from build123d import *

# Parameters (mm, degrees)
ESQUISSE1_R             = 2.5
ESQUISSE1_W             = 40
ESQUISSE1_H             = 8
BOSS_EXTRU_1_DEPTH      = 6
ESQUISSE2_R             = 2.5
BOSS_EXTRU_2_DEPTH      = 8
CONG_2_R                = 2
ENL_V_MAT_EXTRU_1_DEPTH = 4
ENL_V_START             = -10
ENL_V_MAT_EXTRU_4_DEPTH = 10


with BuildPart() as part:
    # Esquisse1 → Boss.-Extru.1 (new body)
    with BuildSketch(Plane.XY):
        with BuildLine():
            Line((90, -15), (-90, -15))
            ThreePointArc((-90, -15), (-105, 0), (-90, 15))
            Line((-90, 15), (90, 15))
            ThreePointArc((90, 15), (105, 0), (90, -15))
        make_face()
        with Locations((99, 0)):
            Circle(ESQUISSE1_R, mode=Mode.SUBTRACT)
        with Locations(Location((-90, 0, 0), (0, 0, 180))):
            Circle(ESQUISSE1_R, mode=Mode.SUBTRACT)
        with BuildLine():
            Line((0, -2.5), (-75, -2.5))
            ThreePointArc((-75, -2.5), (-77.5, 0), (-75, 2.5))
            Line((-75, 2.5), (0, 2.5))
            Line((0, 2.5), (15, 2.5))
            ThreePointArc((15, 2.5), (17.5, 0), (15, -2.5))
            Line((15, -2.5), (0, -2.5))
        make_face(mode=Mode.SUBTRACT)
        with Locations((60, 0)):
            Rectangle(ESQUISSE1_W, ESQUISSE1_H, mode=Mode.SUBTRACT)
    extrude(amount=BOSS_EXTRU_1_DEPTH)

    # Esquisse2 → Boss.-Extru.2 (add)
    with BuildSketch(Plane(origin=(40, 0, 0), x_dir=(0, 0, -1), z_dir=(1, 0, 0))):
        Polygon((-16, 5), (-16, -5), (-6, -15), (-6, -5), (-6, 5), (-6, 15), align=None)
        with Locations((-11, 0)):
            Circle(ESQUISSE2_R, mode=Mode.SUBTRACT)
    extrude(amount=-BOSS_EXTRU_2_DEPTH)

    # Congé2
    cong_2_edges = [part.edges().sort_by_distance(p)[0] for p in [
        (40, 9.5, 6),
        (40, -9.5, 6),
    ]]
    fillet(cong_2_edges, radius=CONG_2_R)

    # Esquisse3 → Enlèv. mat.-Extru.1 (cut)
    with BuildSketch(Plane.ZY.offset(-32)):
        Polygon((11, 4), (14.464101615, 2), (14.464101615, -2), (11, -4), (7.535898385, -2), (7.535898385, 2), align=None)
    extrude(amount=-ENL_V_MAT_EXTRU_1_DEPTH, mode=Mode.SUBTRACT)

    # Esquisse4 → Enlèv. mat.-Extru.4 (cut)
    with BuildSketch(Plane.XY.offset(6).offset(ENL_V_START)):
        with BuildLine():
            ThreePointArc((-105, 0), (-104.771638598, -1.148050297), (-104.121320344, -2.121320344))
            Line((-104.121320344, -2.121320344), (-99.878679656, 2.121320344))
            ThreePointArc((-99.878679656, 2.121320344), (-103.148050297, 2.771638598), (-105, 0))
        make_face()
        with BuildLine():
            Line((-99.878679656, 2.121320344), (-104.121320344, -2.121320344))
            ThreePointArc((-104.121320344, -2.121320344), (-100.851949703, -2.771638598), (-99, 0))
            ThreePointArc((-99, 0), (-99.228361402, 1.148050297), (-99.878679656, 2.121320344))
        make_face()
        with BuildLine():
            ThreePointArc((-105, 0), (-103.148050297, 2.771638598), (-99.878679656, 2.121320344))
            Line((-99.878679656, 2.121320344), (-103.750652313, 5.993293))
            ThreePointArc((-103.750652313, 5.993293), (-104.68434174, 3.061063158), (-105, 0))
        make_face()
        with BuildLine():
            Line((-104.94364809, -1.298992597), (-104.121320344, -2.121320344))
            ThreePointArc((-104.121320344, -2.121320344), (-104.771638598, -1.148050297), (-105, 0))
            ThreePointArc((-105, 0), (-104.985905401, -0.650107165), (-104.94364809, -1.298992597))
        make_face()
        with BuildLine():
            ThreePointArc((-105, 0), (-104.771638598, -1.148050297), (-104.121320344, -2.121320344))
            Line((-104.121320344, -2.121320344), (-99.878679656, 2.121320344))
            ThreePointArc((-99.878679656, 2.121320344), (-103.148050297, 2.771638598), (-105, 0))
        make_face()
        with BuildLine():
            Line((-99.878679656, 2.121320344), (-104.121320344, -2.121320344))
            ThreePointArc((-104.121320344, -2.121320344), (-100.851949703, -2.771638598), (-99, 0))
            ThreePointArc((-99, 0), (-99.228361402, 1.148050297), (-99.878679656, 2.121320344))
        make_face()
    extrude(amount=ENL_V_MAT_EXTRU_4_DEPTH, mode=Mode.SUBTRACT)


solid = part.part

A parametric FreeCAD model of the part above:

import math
import FreeCAD as App
import Part
import Sketcher
Q = App.Units.Quantity


def edges_at(feature, points):
    """Names of the edges that pass closest to the given points."""
    edges = feature.Shape.Edges
    near = lambda p: min(range(len(edges)), key=lambda i: edges[i].distToShape(Part.Vertex(*p))[0])
    return sorted({f"Edge{near(p) + 1}" for p in points})


def add_polygon(sketch, points):
    """Adds a closed chain of lines whose ends are joined by coincident constraints."""
    first, n = sketch.GeometryCount, len(points)
    for a, b in zip(points, points[1:] + points[:1]):
        sketch.addGeometry(Part.LineSegment(App.Vector(*a, 0), App.Vector(*b, 0)), False)
    for i in range(n):
        sketch.addConstraint(Sketcher.Constraint("Coincident", first + i, 2, first + (i + 1) % n, 1))

doc = App.newDocument("Part")
body = doc.addObject("PartDesign::Body", "Body")

# Sketch on XY plane
sketch1 = body.newObject("Sketcher::SketchObject", "Sketch")
sketch1.AttachmentSupport = (doc.getObject("XY_Plane"), [""])
sketch1.MapMode = "FlatFace"
sketch1.addGeometry(Part.LineSegment(App.Vector(-90, -15, 0), App.Vector(90, -15, 0)), False)  # 0
sketch1.addGeometry(Part.ArcOfCircle(Part.Circle(App.Vector(90, 0, 0), App.Vector(0, 0, 1), 15), math.radians(-90), math.radians(90)), False)  # 1
sketch1.addGeometry(Part.LineSegment(App.Vector(90, 15, 0), App.Vector(-90, 15, 0)), False)  # 2
sketch1.addGeometry(Part.ArcOfCircle(Part.Circle(App.Vector(-90, 0, 0), App.Vector(0, 0, 1), 15), math.radians(90), math.radians(270)), False)  # 3
sketch1.addGeometry(Part.Circle(App.Vector(99, 0, 0), App.Vector(0, 0, 1), 2.5), False)  # 4
add_polygon(sketch1, [(40, -4), (40, 4), (80, 4), (80, -4)])  # lines 5-8
sketch1.addGeometry(Part.ArcOfCircle(Part.Circle(App.Vector(-75, 0, 0), App.Vector(0, 0, 1), 2.5), math.radians(90), math.radians(270)), False)  # 9
sketch1.addGeometry(Part.LineSegment(App.Vector(-75, 2.5, 0), App.Vector(15, 2.5, 0)), False)  # 10
sketch1.addGeometry(Part.ArcOfCircle(Part.Circle(App.Vector(15, 0, 0), App.Vector(0, 0, 1), 2.5), math.radians(-90), math.radians(90)), False)  # 11
sketch1.addGeometry(Part.LineSegment(App.Vector(15, -2.5, 0), App.Vector(-75, -2.5, 0)), False)  # 12
sketch1.addGeometry(Part.Circle(App.Vector(-90, 0, 0), App.Vector(0, 0, 1), 2.5), False)  # 13
sketch1.addConstraint(Sketcher.Constraint("Tangent", 0, 2, 1, 1))
sketch1.addConstraint(Sketcher.Constraint("Tangent", 1, 2, 2, 1))
sketch1.addConstraint(Sketcher.Constraint("Tangent", 2, 2, 3, 1))
sketch1.addConstraint(Sketcher.Constraint("Tangent", 3, 2, 0, 1))
sketch1.addConstraint(Sketcher.Constraint("Tangent", 9, 1, 10, 1))
sketch1.addConstraint(Sketcher.Constraint("Tangent", 10, 2, 11, 2))
sketch1.addConstraint(Sketcher.Constraint("Tangent", 11, 1, 12, 1))
sketch1.addConstraint(Sketcher.Constraint("Tangent", 12, 2, 9, 2))
sketch1.addConstraint(Sketcher.Constraint("Horizontal", 0))
sketch1.addConstraint(Sketcher.Constraint("Horizontal", 2))
sketch1.addConstraint(Sketcher.Constraint("Vertical", 5))
sketch1.addConstraint(Sketcher.Constraint("Horizontal", 6))
sketch1.addConstraint(Sketcher.Constraint("Vertical", 7))
sketch1.addConstraint(Sketcher.Constraint("Horizontal", 8))
sketch1.addConstraint(Sketcher.Constraint("Horizontal", 10))
sketch1.addConstraint(Sketcher.Constraint("Horizontal", 12))
sketch1.addConstraint(Sketcher.Constraint("Coincident", 13, 3, 3, 3))
sketch1.addConstraint(Sketcher.Constraint("Equal", 4, 9))
sketch1.addConstraint(Sketcher.Constraint("Equal", 11, 13))
sketch1.addConstraint(Sketcher.Constraint("Symmetric", 1, 3, 3, 3, -1, 1))
sketch1.addConstraint(Sketcher.Constraint("PointOnObject", 4, 3, -1))
sketch1.addConstraint(Sketcher.Constraint("PointOnObject", 9, 3, -1))
sketch1.addConstraint(Sketcher.Constraint("Diameter", 4, 5.0))
sketch1.addConstraint(Sketcher.Constraint("Radius", 1, 15.0))
sketch1.addConstraint(Sketcher.Constraint("DistanceX", 0, 1, 0, 2, 180.0))
sketch1.addConstraint(Sketcher.Constraint("DistanceX", 6, 1, 6, 2, 40.0))
sketch1.addConstraint(Sketcher.Constraint("DistanceX", 10, 1, 10, 2, 90.0))
sketch1.addConstraint(Sketcher.Constraint("DistanceY", 5, 1, 5, 2, 8.0))
sketch1.addConstraint(Sketcher.Constraint("DistanceX", -1, 1, 4, 3, 99.0))
sketch1.addConstraint(Sketcher.Constraint("DistanceX", 9, 3, -1, 1, 75.0))
sketch1.addConstraint(Sketcher.Constraint("DistanceX", -1, 1, 5, 2, 40.0))
sketch1.addConstraint(Sketcher.Constraint("DistanceY", -1, 1, 5, 2, 4.0))
pad1 = body.newObject("PartDesign::Pad", "Pad")
pad1.Profile = sketch1
pad1.Length = 6

# Sketch on YZ plane
sketch2 = body.newObject("Sketcher::SketchObject", "Sketch001")
sketch2.AttachmentSupport = (doc.getObject("YZ_Plane"), [""])
sketch2.MapMode = "FlatFace"
sketch2.AttachmentOffset = App.Placement(App.Vector(0, 0, 40), App.Rotation())
add_polygon(sketch2, [(5, 16), (-5, 16), (-15, 6), (15, 6)])  # lines 0-3
sketch2.addGeometry(Part.Circle(App.Vector(0, 11, 0), App.Vector(0, 0, 1), 2.5), False)  # 4
sketch2.addConstraint(Sketcher.Constraint("Horizontal", 0))
sketch2.addConstraint(Sketcher.Constraint("Horizontal", 2))
sketch2.addConstraint(Sketcher.Constraint("PointOnObject", 4, 3, -2))
sketch2.addConstraint(Sketcher.Constraint("Perpendicular", 1, 3))
sketch2.addConstraint(Sketcher.Constraint("Equal", 1, 3))
sketch2.addConstraint(Sketcher.Constraint("Diameter", 4, 5.0))
sketch2.addConstraint(Sketcher.Constraint("DistanceX", 0, 2, 0, 1, 10.0))
sketch2.addConstraint(Sketcher.Constraint("DistanceX", 2, 1, 2, 2, 30.0))
sketch2.addConstraint(Sketcher.Constraint("DistanceY", -1, 1, 4, 3, 11.0))
sketch2.addConstraint(Sketcher.Constraint("DistanceX", 0, 2, -1, 1, 5.0))
sketch2.addConstraint(Sketcher.Constraint("DistanceY", -1, 1, 0, 2, 16.0))
pad2 = body.newObject("PartDesign::Pad", "Pad001")
pad2.Profile = sketch2
pad2.Length = 8
pad2.Reversed = True
doc.recompute()

fillet = body.newObject("PartDesign::Fillet", "Fillet")
fillet.Base = (pad2, edges_at(pad2, [(40, 9.5, 6), (40, -9.5, 6)]))
fillet.Radius = 2

# Sketch on YZ plane
sketch3 = body.newObject("Sketcher::SketchObject", "Sketch002")
sketch3.AttachmentSupport = (doc.getObject("YZ_Plane"), [""])
sketch3.MapMode = "FlatFace"
sketch3.AttachmentOffset = App.Placement(App.Vector(0, 0, 32), App.Rotation())
add_polygon(sketch3, [(2, 14.5), (4, 11), (2, 7.5), (-2, 7.5), (-4, 11), (-2, 14.5)])  # lines 0-5
sketch3.addConstraint(Sketcher.Constraint("Horizontal", 2))
sketch3.addConstraint(Sketcher.Constraint("Horizontal", 5))
sketch3.addConstraint(Sketcher.Constraint("Symmetric", 0, 2, 3, 2, -2))
sketch3.addConstraint(Sketcher.Constraint("Parallel", 0, 3))
sketch3.addConstraint(Sketcher.Constraint("Parallel", 1, 4))
sketch3.addConstraint(Sketcher.Constraint("Vertical", 2, 2, 4, 2))
sketch3.addConstraint(Sketcher.Constraint("Vertical", 1, 2, 5, 2))
sketch3.addConstraint(Sketcher.Constraint("DistanceX", 2, 2, 2, 1, 4.0))
sketch3.addConstraint(Sketcher.Constraint("Angle", 0, Q("-60 deg")))
sketch3.addConstraint(Sketcher.Constraint("Distance", 0, 4.0))
sketch3.addConstraint(Sketcher.Constraint("DistanceY", -1, 1, 0, 2, 11.0))
pocket1 = body.newObject("PartDesign::Pocket", "Pocket")
pocket1.Profile = sketch3
pocket1.Length = 4
pocket1.Reversed = True

# Sketch on XY plane
sketch4 = body.newObject("Sketcher::SketchObject", "Sketch003")
sketch4.AttachmentSupport = (doc.getObject("XY_Plane"), [""])
sketch4.MapMode = "FlatFace"
sketch4.AttachmentOffset = App.Placement(App.Vector(0, 0, -4), App.Rotation())
sketch4.addGeometry(Part.ArcOfCircle(Part.Circle(App.Vector(-102, 0, 0), App.Vector(0, 0, 1), 3), math.radians(-135), math.radians(0)), False)
sketch4.addGeometry(Part.ArcOfCircle(Part.Circle(App.Vector(-102, 0, 0), App.Vector(0, 0, 1), 3), math.radians(0), math.radians(45)), False)
sketch4.addGeometry(Part.LineSegment(App.Vector(-99.9, 2.1, 0), App.Vector(-103.8, 6, 0)), False)
sketch4.addGeometry(Part.ArcOfCircle(Part.Circle(App.Vector(-90, 0, 0), App.Vector(0, 0, 1), 15), math.radians(156), math.radians(180)), False)
sketch4.addGeometry(Part.ArcOfCircle(Part.Circle(App.Vector(-90, 0, 0), App.Vector(0, 0, 1), 15), math.radians(180), math.radians(184.97)), False)
sketch4.addGeometry(Part.LineSegment(App.Vector(-104.9, -1.3, 0), App.Vector(-104.1, -2.1, 0)), False)
sketch4.addConstraint(Sketcher.Constraint("Tangent", 0, 2, 1, 1))
sketch4.addConstraint(Sketcher.Constraint("Tangent", 1, 2, 2, 1))
sketch4.addConstraint(Sketcher.Constraint("Coincident", 2, 2, 3, 1))
sketch4.addConstraint(Sketcher.Constraint("Tangent", 3, 2, 4, 1))
sketch4.addConstraint(Sketcher.Constraint("Coincident", 4, 2, 5, 1))
sketch4.addConstraint(Sketcher.Constraint("Tangent", 5, 2, 0, 1))
sketch4.addConstraint(Sketcher.Constraint("Equal", 0, 1))
sketch4.addConstraint(Sketcher.Constraint("Equal", 3, 4))
sketch4.addConstraint(Sketcher.Constraint("PointOnObject", 0, 3, -1))
sketch4.addConstraint(Sketcher.Constraint("PointOnObject", 3, 3, -1))
sketch4.addConstraint(Sketcher.Constraint("PointOnObject", 0, 2, -1))
sketch4.addConstraint(Sketcher.Constraint("PointOnObject", 3, 2, -1))
sketch4.addConstraint(Sketcher.Constraint("Parallel", 2, 5))
sketch4.addConstraint(Sketcher.Constraint("Radius", 0, 3.0))
sketch4.addConstraint(Sketcher.Constraint("Radius", 3, 15.0))
sketch4.addConstraint(Sketcher.Constraint("Angle", 2, Q("135 deg")))
sketch4.addConstraint(Sketcher.Constraint("DistanceX", 0, 3, -1, 1, 102.0))
sketch4.addConstraint(Sketcher.Constraint("DistanceX", 3, 3, -1, 1, 90.0))
pocket2 = body.newObject("PartDesign::Pocket", "Pocket001")
pocket2.Profile = sketch4
pocket2.Length = 10
pocket2.Reversed = True

doc.recompute()
